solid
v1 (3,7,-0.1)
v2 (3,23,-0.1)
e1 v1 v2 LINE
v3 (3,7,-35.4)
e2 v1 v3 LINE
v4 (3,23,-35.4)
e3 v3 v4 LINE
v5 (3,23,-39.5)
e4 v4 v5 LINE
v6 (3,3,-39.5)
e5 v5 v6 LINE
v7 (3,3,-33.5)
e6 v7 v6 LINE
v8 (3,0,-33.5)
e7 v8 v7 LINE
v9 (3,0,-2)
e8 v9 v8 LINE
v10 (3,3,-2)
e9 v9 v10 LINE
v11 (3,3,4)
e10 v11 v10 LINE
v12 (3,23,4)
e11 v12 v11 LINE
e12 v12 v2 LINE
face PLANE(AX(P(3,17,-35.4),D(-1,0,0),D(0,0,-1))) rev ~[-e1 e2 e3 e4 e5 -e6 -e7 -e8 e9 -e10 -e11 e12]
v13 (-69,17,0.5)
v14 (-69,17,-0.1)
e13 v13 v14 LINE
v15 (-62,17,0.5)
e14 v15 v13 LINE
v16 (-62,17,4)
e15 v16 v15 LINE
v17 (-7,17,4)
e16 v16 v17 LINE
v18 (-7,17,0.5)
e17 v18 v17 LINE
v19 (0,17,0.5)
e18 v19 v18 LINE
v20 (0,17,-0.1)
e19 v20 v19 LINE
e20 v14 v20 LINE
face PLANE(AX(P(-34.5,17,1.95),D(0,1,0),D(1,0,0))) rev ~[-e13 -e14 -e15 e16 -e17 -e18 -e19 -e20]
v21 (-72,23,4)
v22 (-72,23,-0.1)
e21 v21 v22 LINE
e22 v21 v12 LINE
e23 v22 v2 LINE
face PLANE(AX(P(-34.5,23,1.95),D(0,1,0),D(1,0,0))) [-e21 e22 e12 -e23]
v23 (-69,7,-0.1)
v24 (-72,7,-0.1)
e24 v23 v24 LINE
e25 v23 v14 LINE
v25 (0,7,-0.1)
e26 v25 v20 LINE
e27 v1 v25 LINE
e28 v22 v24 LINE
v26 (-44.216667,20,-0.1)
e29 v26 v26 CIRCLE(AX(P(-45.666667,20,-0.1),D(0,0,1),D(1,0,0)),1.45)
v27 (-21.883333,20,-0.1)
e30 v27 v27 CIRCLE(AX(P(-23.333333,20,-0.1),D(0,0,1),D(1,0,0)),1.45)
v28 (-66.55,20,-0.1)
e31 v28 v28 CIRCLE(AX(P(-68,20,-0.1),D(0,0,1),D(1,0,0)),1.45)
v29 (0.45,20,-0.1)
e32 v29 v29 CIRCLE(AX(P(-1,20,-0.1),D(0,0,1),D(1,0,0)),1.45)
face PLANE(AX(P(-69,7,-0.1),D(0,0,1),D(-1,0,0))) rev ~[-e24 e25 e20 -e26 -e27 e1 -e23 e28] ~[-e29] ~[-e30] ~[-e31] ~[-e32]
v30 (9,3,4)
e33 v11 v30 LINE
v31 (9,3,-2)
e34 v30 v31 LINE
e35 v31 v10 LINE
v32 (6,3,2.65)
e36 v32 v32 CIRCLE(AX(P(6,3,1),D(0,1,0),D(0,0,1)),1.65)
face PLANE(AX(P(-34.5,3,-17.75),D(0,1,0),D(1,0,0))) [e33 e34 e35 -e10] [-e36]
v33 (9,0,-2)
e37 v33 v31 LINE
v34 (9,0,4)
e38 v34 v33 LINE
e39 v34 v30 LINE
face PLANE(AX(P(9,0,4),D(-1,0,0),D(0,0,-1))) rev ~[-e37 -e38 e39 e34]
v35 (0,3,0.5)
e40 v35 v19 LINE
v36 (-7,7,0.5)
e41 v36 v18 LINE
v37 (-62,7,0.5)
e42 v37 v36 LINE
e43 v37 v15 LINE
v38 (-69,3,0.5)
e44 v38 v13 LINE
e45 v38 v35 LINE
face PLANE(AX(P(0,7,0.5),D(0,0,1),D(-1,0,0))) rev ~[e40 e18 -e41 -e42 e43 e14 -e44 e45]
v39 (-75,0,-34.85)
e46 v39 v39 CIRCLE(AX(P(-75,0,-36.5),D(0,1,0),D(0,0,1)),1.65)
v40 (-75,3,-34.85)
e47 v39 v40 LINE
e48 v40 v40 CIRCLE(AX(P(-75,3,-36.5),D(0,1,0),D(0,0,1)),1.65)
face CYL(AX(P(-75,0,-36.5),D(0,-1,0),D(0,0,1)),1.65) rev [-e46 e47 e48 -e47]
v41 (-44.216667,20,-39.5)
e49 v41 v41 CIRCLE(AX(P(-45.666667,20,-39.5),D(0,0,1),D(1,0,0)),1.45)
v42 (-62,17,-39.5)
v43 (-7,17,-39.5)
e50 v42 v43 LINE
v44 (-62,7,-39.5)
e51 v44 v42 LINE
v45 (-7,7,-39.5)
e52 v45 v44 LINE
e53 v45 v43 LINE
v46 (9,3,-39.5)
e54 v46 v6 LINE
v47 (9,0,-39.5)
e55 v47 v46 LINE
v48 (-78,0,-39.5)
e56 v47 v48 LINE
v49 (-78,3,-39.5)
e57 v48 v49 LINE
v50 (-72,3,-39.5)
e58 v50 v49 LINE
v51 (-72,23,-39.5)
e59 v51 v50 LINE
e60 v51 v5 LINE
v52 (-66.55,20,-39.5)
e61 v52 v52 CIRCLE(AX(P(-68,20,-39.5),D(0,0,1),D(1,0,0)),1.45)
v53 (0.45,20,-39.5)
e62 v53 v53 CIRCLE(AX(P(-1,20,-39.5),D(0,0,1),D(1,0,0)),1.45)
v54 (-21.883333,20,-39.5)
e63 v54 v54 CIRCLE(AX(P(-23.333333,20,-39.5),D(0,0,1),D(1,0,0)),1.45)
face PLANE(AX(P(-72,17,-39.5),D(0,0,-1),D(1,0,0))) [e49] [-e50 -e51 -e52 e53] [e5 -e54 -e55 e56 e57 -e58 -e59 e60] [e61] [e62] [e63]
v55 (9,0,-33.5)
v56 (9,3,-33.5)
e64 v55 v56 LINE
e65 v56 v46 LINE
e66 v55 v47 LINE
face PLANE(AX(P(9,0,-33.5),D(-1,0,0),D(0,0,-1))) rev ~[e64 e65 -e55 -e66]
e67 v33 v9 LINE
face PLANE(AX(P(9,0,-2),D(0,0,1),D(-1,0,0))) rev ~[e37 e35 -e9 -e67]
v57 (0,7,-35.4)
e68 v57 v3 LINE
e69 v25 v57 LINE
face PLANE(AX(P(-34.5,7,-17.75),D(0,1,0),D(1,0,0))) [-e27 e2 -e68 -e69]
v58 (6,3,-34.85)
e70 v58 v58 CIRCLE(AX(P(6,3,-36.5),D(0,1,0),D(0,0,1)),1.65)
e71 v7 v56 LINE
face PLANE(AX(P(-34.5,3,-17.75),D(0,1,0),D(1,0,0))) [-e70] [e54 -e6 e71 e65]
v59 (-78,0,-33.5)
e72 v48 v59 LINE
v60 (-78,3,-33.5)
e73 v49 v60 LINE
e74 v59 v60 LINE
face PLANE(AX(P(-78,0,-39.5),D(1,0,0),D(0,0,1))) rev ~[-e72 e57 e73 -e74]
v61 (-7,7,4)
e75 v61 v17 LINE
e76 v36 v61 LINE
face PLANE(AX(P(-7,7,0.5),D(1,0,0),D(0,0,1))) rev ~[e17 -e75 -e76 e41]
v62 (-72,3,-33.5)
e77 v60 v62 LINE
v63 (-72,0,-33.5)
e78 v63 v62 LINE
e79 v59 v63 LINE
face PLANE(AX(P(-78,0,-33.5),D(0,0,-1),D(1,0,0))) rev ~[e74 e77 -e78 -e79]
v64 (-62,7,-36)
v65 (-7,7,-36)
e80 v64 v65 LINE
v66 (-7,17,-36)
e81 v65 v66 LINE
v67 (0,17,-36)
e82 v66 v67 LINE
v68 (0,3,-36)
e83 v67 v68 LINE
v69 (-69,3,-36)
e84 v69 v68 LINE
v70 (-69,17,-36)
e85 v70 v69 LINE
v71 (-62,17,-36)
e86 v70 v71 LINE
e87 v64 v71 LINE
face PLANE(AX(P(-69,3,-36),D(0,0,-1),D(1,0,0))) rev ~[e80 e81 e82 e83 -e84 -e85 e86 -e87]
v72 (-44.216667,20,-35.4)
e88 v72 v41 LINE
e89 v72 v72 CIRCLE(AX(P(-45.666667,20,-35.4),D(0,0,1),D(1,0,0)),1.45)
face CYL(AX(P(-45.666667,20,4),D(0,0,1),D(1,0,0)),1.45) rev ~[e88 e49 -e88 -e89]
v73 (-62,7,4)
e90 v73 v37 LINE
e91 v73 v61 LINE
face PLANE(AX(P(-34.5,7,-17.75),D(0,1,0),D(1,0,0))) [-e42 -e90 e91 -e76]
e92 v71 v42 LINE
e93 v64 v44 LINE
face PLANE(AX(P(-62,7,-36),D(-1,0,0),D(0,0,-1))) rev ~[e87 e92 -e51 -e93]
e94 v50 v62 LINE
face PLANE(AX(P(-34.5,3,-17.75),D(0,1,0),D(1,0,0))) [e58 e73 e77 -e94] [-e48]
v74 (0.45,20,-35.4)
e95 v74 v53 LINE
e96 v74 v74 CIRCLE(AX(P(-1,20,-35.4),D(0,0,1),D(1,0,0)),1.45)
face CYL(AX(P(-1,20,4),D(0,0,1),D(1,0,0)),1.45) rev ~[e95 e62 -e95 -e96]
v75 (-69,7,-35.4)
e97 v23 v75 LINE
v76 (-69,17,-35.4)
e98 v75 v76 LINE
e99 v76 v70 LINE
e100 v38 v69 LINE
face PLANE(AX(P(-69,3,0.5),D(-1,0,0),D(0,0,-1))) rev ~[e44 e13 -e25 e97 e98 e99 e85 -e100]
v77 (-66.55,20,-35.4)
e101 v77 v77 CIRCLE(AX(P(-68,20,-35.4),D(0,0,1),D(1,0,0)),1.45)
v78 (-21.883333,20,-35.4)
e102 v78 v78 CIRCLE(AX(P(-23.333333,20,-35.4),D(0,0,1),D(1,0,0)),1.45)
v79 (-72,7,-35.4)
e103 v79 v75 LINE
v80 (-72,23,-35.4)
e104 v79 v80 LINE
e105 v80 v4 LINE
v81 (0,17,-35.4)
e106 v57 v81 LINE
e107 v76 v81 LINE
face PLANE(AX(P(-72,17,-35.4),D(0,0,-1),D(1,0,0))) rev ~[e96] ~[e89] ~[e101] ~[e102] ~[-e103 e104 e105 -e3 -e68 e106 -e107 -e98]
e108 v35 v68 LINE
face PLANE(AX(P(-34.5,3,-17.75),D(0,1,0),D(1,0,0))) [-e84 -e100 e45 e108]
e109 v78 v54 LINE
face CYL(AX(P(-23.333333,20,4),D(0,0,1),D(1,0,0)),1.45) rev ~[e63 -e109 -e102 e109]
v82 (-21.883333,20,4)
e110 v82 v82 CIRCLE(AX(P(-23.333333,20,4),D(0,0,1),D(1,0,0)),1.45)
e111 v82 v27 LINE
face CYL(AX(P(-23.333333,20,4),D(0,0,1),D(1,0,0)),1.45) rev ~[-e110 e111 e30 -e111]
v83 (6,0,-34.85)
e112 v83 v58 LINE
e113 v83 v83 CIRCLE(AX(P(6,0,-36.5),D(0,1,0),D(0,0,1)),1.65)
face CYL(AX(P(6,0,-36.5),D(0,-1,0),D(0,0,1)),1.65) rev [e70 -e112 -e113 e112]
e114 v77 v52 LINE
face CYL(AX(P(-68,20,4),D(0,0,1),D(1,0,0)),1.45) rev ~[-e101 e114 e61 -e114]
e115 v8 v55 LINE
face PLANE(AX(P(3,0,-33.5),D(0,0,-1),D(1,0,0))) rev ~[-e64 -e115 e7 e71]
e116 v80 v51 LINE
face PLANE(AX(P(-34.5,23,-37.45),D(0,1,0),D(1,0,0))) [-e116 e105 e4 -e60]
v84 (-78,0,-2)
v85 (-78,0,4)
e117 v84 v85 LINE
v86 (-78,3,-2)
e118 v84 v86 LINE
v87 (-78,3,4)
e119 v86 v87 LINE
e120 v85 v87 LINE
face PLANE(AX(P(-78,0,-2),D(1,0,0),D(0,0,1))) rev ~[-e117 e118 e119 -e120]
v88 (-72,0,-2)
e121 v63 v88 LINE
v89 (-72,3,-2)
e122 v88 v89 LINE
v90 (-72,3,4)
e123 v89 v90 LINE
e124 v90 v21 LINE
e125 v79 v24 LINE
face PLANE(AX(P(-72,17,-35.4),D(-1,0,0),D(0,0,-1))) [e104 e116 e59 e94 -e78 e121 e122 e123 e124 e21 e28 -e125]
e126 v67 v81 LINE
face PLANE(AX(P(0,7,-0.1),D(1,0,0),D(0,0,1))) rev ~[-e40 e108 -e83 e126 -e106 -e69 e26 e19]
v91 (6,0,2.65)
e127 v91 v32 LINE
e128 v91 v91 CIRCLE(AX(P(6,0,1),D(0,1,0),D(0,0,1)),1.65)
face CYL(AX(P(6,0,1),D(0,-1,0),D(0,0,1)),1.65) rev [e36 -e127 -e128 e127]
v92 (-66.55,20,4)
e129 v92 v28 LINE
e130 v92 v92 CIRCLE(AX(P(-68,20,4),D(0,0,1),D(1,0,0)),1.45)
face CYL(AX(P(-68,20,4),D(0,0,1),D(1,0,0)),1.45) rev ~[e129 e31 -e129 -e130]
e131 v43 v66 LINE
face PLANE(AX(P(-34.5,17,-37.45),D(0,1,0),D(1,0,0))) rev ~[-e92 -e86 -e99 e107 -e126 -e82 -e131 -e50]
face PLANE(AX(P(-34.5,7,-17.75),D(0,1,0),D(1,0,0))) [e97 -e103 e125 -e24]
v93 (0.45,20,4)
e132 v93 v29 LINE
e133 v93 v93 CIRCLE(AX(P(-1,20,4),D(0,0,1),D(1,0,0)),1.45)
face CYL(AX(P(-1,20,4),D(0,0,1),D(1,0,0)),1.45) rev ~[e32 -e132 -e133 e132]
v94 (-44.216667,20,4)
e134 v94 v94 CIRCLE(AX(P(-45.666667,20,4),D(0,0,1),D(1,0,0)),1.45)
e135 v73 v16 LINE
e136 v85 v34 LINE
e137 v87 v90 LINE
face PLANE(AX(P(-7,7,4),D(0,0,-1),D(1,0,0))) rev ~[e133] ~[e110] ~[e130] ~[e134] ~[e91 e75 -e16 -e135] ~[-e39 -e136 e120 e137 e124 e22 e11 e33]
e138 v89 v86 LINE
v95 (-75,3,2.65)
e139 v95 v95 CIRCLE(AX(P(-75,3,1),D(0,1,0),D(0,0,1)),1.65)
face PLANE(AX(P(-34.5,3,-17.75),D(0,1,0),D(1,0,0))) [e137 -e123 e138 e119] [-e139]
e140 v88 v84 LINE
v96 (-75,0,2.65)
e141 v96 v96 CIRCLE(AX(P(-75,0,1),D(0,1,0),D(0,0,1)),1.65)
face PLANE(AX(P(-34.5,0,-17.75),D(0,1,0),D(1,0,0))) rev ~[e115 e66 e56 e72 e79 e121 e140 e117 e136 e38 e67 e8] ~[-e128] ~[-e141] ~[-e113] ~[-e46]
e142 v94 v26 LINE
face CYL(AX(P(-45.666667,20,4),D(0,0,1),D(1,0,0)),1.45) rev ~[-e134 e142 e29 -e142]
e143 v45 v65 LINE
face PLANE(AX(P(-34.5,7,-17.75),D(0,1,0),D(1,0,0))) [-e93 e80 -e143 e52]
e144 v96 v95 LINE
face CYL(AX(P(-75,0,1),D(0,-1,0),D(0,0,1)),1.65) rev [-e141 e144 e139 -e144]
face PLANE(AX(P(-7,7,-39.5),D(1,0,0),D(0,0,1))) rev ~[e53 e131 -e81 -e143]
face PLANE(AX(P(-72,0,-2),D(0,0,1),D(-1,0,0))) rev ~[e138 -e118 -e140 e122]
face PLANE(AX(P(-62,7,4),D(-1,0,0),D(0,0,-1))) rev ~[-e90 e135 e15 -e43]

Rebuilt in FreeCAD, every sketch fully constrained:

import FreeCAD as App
import Part
import Sketcher

V = App.Vector
Q = App.Units.Quantity


def add_polygon(sketch, points):
    """Adds a closed chain of lines whose ends are joined by coincident constraints."""
    first, n = sketch.GeometryCount, len(points)
    for a, b in zip(points, points[1:] + points[:1]):
        sketch.addGeometry(Part.LineSegment(App.Vector(*a, 0), App.Vector(*b, 0)), False)
    for i in range(n):
        sketch.addConstraint(Sketcher.Constraint("Coincident", first + i, 2, first + (i + 1) % n, 1))

doc = App.newDocument("Part")
body = doc.addObject("PartDesign::Body", "Body")

# Sketch on XZ plane
sketch1 = doc.addObject("Sketcher::SketchObject", "Sketch")
body.addObject(sketch1)
sketch1.AttachmentSupport = (doc.XZ_Plane, [""])
sketch1.MapMode = "FlatFace"
add_polygon(sketch1, [(-78, -39.5), (-78, -33.5), (-72, -33.5), (-72, -2), (-78, -2), (-78, 4), (9, 4), (9, -2), (3, -2), (3, -33.5), (9, -33.5), (9, -39.5)])  # lines 0-11
sketch1.addGeometry(Part.Circle(V(-75, 1, 0), V(0, 0, 1), 1.65), False)  # 12
sketch1.addGeometry(Part.Circle(V(6, 1, 0), V(0, 0, 1), 1.65), False)  # 13
sketch1.addGeometry(Part.Circle(V(-75, -36.5, 0), V(0, 0, 1), 1.65), False)  # 14
sketch1.addGeometry(Part.Circle(V(6, -36.5, 0), V(0, 0, 1), 1.65), False)  # 15
sketch1.addConstraint(Sketcher.Constraint("Vertical", 0))
sketch1.addConstraint(Sketcher.Constraint("Horizontal", 1))
sketch1.addConstraint(Sketcher.Constraint("Vertical", 2))
sketch1.addConstraint(Sketcher.Constraint("Horizontal", 3))
sketch1.addConstraint(Sketcher.Constraint("Vertical", 4))
sketch1.addConstraint(Sketcher.Constraint("Horizontal", 5))
sketch1.addConstraint(Sketcher.Constraint("Vertical", 6))
sketch1.addConstraint(Sketcher.Constraint("Horizontal", 7))
sketch1.addConstraint(Sketcher.Constraint("Vertical", 8))
sketch1.addConstraint(Sketcher.Constraint("Horizontal", 9))
sketch1.addConstraint(Sketcher.Constraint("Vertical", 10))
sketch1.addConstraint(Sketcher.Constraint("Horizontal", 11))
sketch1.addConstraint(Sketcher.Constraint("Equal", 12, 13))
sketch1.addConstraint(Sketcher.Constraint("Equal", 13, 14))
sketch1.addConstraint(Sketcher.Constraint("Equal", 14, 15))
sketch1.addConstraint(Sketcher.Constraint("Horizontal", 12, 3, 13, 3))
sketch1.addConstraint(Sketcher.Constraint("Horizontal", 14, 3, 15, 3))
sketch1.addConstraint(Sketcher.Constraint("Horizontal", 3, 2, 6, 2))
sketch1.addConstraint(Sketcher.Constraint("Horizontal", 1, 2, 8, 2))
sketch1.addConstraint(Sketcher.Constraint("Vertical", 12, 3, 14, 3))
sketch1.addConstraint(Sketcher.Constraint("Vertical", 13, 3, 15, 3))
sketch1.addConstraint(Sketcher.Constraint("Vertical", 0, 2, 3, 2))
sketch1.addConstraint(Sketcher.Constraint("Vertical", 6, 2, 9, 2))
sketch1.addConstraint(Sketcher.Constraint("Equal", 3, 7))
sketch1.addConstraint(Sketcher.Constraint("Equal", 9, 0))
sketch1.addConstraint(Sketcher.Constraint("Equal", 0, 4))
sketch1.addConstraint(Sketcher.Constraint("Diameter", 12, Q("3.3 mm")))
sketch1.addConstraint(Sketcher.Constraint("DistanceX", 1, 1, 1, 2, Q("6 mm")))
sketch1.addConstraint(Sketcher.Constraint("DistanceX", 5, 1, 5, 2, Q("87 mm")))
sketch1.addConstraint(Sketcher.Constraint("DistanceY", 2, 1, 2, 2, Q("31.5 mm")))
sketch1.addConstraint(Sketcher.Constraint("DistanceX", 12, 3, -1, 1, Q("75 mm")))
sketch1.addConstraint(Sketcher.Constraint("DistanceY", -1, 1, 12, 3, Q("1 mm")))
sketch1.addConstraint(Sketcher.Constraint("DistanceX", -1, 1, 13, 3, Q("6 mm")))
sketch1.addConstraint(Sketcher.Constraint("DistanceX", 0, 2, -1, 1, Q("78 mm")))
sketch1.addConstraint(Sketcher.Constraint("DistanceY", 2, 2, -1, 1, Q("2 mm")))
sketch1.addConstraint(Sketcher.Constraint("DistanceY", 14, 3, 0, 2, Q("3 mm")))
pad1 = doc.addObject("PartDesign::Pad", "Pad")
body.addObject(pad1)
pad1.Profile = sketch1
pad1.Length = 3
pad1.Reversed = True

# Sketch on XZ plane
sketch2 = doc.addObject("Sketcher::SketchObject", "Sketch001")
body.addObject(sketch2)
sketch2.AttachmentSupport = (doc.XZ_Plane, [""])
sketch2.MapMode = "FlatFace"
sketch2.AttachmentOffset = App.Placement(V(0, 0, -3), App.Rotation())
add_polygon(sketch2, [(-72, -39.5), (-72, 4), (3, 4), (3, -39.5)])  # lines 0-3
add_polygon(sketch2, [(0, 0.5), (-69, 0.5), (-69, -36), (0, -36)])  # lines 4-7
sketch2.addConstraint(Sketcher.Constraint("Vertical", 0))
sketch2.addConstraint(Sketcher.Constraint("Horizontal", 1))
sketch2.addConstraint(Sketcher.Constraint("Vertical", 2))
sketch2.addConstraint(Sketcher.Constraint("Horizontal", 3))
sketch2.addConstraint(Sketcher.Constraint("Horizontal", 4))
sketch2.addConstraint(Sketcher.Constraint("Vertical", 5))
sketch2.addConstraint(Sketcher.Constraint("Horizontal", 6))
sketch2.addConstraint(Sketcher.Constraint("Vertical", 7))
sketch2.addConstraint(Sketcher.Constraint("PointOnObject", 6, 2, -2))
sketch2.addConstraint(Sketcher.Constraint("DistanceX", 1, 1, 1, 2, Q("75 mm")))
sketch2.addConstraint(Sketcher.Constraint("DistanceX", 4, 2, 4, 1, Q("69 mm")))
sketch2.addConstraint(Sketcher.Constraint("DistanceY", 0, 1, 0, 2, Q("43.5 mm")))
sketch2.addConstraint(Sketcher.Constraint("DistanceY", 5, 2, 5, 1, Q("36.5 mm")))
sketch2.addConstraint(Sketcher.Constraint("DistanceX", 0, 2, -1, 1, Q("72 mm")))
sketch2.addConstraint(Sketcher.Constraint("DistanceY", -1, 1, 0, 2, Q("4 mm")))
sketch2.addConstraint(Sketcher.Constraint("DistanceY", 5, 2, -1, 1, Q("36 mm")))
pad2 = doc.addObject("PartDesign::Pad", "Pad001")
body.addObject(pad2)
pad2.Profile = sketch2
pad2.Length = 4
pad2.Reversed = True

# Sketch on XZ plane
sketch3 = doc.addObject("Sketcher::SketchObject", "Sketch002")
body.addObject(sketch3)
sketch3.AttachmentSupport = (doc.XZ_Plane, [""])
sketch3.MapMode = "FlatFace"
sketch3.AttachmentOffset = App.Placement(V(0, 0, -7), App.Rotation())
add_polygon(sketch3, [(3, 4), (3, -0.1), (0, -0.1), (0, 0.5), (-7, 0.5), (-7, 4)])  # lines 0-5
add_polygon(sketch3, [(3, -39.5), (-7, -39.5), (-7, -36), (0, -36), (0, -35.4), (3, -35.4)])  # lines 6-11
add_polygon(sketch3, [(-72, -39.5), (-72, -35.4), (-69, -35.4), (-69, -36), (-62, -36), (-62, -39.5)])  # lines 12-17
add_polygon(sketch3, [(-72, 4), (-62, 4), (-62, 0.5), (-69, 0.5), (-69, -0.1), (-72, -0.1)])  # lines 18-23
sketch3.addConstraint(Sketcher.Constraint("Vertical", 0))
sketch3.addConstraint(Sketcher.Constraint("Horizontal", 1))
sketch3.addConstraint(Sketcher.Constraint("Vertical", 2))
sketch3.addConstraint(Sketcher.Constraint("Horizontal", 3))
sketch3.addConstraint(Sketcher.Constraint("Vertical", 4))
sketch3.addConstraint(Sketcher.Constraint("Horizontal", 5))
sketch3.addConstraint(Sketcher.Constraint("Horizontal", 6))
sketch3.addConstraint(Sketcher.Constraint("Vertical", 7))
sketch3.addConstraint(Sketcher.Constraint("Horizontal", 8))
sketch3.addConstraint(Sketcher.Constraint("Vertical", 9))
sketch3.addConstraint(Sketcher.Constraint("Horizontal", 10))
sketch3.addConstraint(Sketcher.Constraint("Vertical", 11))
sketch3.addConstraint(Sketcher.Constraint("Vertical", 12))
sketch3.addConstraint(Sketcher.Constraint("Horizontal", 13))
sketch3.addConstraint(Sketcher.Constraint("Vertical", 14))
sketch3.addConstraint(Sketcher.Constraint("Horizontal", 15))
sketch3.addConstraint(Sketcher.Constraint("Vertical", 16))
sketch3.addConstraint(Sketcher.Constraint("Horizontal", 17))
sketch3.addConstraint(Sketcher.Constraint("Horizontal", 18))
sketch3.addConstraint(Sketcher.Constraint("Vertical", 19))
sketch3.addConstraint(Sketcher.Constraint("Horizontal", 20))
sketch3.addConstraint(Sketcher.Constraint("Vertical", 21))
sketch3.addConstraint(Sketcher.Constraint("Horizontal", 22))
sketch3.addConstraint(Sketcher.Constraint("Vertical", 23))
sketch3.addConstraint(Sketcher.Constraint("PointOnObject", 1, 2, -2))
sketch3.addConstraint(Sketcher.Constraint("PointOnObject", 8, 2, -2))
sketch3.addConstraint(Sketcher.Constraint("Horizontal", 10, 2, 12, 2))
sketch3.addConstraint(Sketcher.Constraint("Horizontal", 8, 2, 14, 2))
sketch3.addConstraint(Sketcher.Constraint("Horizontal", 11, 2, 16, 2))
sketch3.addConstraint(Sketcher.Constraint("Horizontal", 5, 2, 18, 2))
sketch3.addConstraint(Sketcher.Constraint("Horizontal", 3, 2, 19, 2))
sketch3.addConstraint(Sketcher.Constraint("Horizontal", 1, 2, 21, 2))
sketch3.addConstraint(Sketcher.Constraint("Vertical", 4, 2, 6, 2))
sketch3.addConstraint(Sketcher.Constraint("Vertical", 5, 2, 10, 2))
sketch3.addConstraint(Sketcher.Constraint("Vertical", 16, 2, 18, 2))
sketch3.addConstraint(Sketcher.Constraint("Vertical", 14, 2, 20, 2))
sketch3.addConstraint(Sketcher.Constraint("Vertical", 17, 2, 22, 2))
sketch3.addConstraint(Sketcher.Constraint("Equal", 10, 13))
sketch3.addConstraint(Sketcher.Constraint("Equal", 8, 15))
sketch3.addConstraint(Sketcher.Constraint("Equal", 4, 7))
sketch3.addConstraint(Sketcher.Constraint("Equal", 2, 9))
sketch3.addConstraint(Sketcher.Constraint("DistanceX", 1, 2, 1, 1, Q("3 mm")))
sketch3.addConstraint(Sketcher.Constraint("DistanceX", 3, 2, 3, 1, Q("7 mm")))
sketch3.addConstraint(Sketcher.Constraint("DistanceY", 0, 2, 0, 1, Q("4.1 mm")))
sketch3.addConstraint(Sketcher.Constraint("DistanceY", 2, 1, 2, 2, Q("0.6 mm")))
sketch3.addConstraint(Sketcher.Constraint("DistanceY", -1, 1, 4, 2, Q("4 mm")))
sketch3.addConstraint(Sketcher.Constraint("DistanceY", 7, 2, -1, 1, Q("36 mm")))
sketch3.addConstraint(Sketcher.Constraint("DistanceX", 12, 2, -1, 1, Q("72 mm")))
pad3 = doc.addObject("PartDesign::Pad", "Pad002")
body.addObject(pad3)
pad3.Profile = sketch3
pad3.Length = 10
pad3.Reversed = True

# Sketch on XZ plane
sketch4 = doc.addObject("Sketcher::SketchObject", "Sketch003")
body.addObject(sketch4)
sketch4.AttachmentSupport = (doc.XZ_Plane, [""])
sketch4.MapMode = "FlatFace"
sketch4.AttachmentOffset = App.Placement(V(0, 0, -17), App.Rotation())
add_polygon(sketch4, [(-72, -39.5), (-72, -35.4), (3, -35.4), (3, -39.5)])  # lines 0-3
add_polygon(sketch4, [(-72, -0.1), (-72, 4), (3, 4), (3, -0.1)])  # lines 4-7
sketch4.addConstraint(Sketcher.Constraint("Vertical", 0))
sketch4.addConstraint(Sketcher.Constraint("Horizontal", 1))
sketch4.addConstraint(Sketcher.Constraint("Vertical", 2))
sketch4.addConstraint(Sketcher.Constraint("Horizontal", 3))
sketch4.addConstraint(Sketcher.Constraint("Vertical", 4))
sketch4.addConstraint(Sketcher.Constraint("Horizontal", 5))
sketch4.addConstraint(Sketcher.Constraint("Vertical", 6))
sketch4.addConstraint(Sketcher.Constraint("Horizontal", 7))
sketch4.addConstraint(Sketcher.Constraint("Vertical", 3, 2, 4, 2))
sketch4.addConstraint(Sketcher.Constraint("Vertical", 2, 2, 5, 2))
sketch4.addConstraint(Sketcher.Constraint("Equal", 2, 4))
sketch4.addConstraint(Sketcher.Constraint("DistanceX", 1, 1, 1, 2, Q("75 mm")))
sketch4.addConstraint(Sketcher.Constraint("DistanceY", 0, 1, 0, 2, Q("4.1 mm")))
sketch4.addConstraint(Sketcher.Constraint("DistanceX", 0, 2, -1, 1, Q("72 mm")))
sketch4.addConstraint(Sketcher.Constraint("DistanceY", -1, 1, 4, 2, Q("4 mm")))
sketch4.addConstraint(Sketcher.Constraint("DistanceY", 0, 2, -1, 1, Q("35.4 mm")))
pad4 = doc.addObject("PartDesign::Pad", "Pad003")
body.addObject(pad4)
pad4.Profile = sketch4
pad4.Length = 6
pad4.Reversed = True

# Sketch on XY plane
sketch5 = doc.addObject("Sketcher::SketchObject", "Sketch004")
body.addObject(sketch5)
sketch5.AttachmentSupport = (doc.XY_Plane, [""])
sketch5.MapMode = "FlatFace"
sketch5.AttachmentOffset = App.Placement(V(0, 0, 4), App.Rotation())
sketch5.addGeometry(Part.Circle(V(-68, 20, 0), V(0, 0, 1), 1.45), False)
sketch5.addGeometry(Part.Circle(V(-45.666667, 20, 0), V(0, 0, 1), 1.45), False)
sketch5.addGeometry(Part.Circle(V(-23.333333, 20, 0), V(0, 0, 1), 1.45), False)
sketch5.addGeometry(Part.Circle(V(-1, 20, 0), V(0, 0, 1), 1.45), False)
sketch5.addConstraint(Sketcher.Constraint("Equal", 0, 1))
sketch5.addConstraint(Sketcher.Constraint("Equal", 1, 2))
sketch5.addConstraint(Sketcher.Constraint("Equal", 2, 3))
sketch5.addConstraint(Sketcher.Constraint("Horizontal", 0, 3, 1, 3))
sketch5.addConstraint(Sketcher.Constraint("Horizontal", 1, 3, 2, 3))
sketch5.addConstraint(Sketcher.Constraint("Horizontal", 2, 3, 3, 3))
sketch5.addConstraint(Sketcher.Constraint("Diameter", 0, Q("2.9 mm")))
sketch5.addConstraint(Sketcher.Constraint("DistanceX", 0, 3, -1, 1, Q("68 mm")))
sketch5.addConstraint(Sketcher.Constraint("DistanceY", -1, 1, 0, 3, Q("20 mm")))
sketch5.addConstraint(Sketcher.Constraint("DistanceX", 3, 3, -1, 1, Q("1 mm")))
sketch5.addConstraint(Sketcher.Constraint("DistanceX", 1, 3, -1, 1, Q("45.666667 mm")))
sketch5.addConstraint(Sketcher.Constraint("DistanceX", 2, 3, -1, 1, Q("23.333333 mm")))
pocket1 = doc.addObject("PartDesign::Pocket", "Pocket")
body.addObject(pocket1)
pocket1.Profile = sketch5
pocket1.Type = "ThroughAll"

doc.recompute()
